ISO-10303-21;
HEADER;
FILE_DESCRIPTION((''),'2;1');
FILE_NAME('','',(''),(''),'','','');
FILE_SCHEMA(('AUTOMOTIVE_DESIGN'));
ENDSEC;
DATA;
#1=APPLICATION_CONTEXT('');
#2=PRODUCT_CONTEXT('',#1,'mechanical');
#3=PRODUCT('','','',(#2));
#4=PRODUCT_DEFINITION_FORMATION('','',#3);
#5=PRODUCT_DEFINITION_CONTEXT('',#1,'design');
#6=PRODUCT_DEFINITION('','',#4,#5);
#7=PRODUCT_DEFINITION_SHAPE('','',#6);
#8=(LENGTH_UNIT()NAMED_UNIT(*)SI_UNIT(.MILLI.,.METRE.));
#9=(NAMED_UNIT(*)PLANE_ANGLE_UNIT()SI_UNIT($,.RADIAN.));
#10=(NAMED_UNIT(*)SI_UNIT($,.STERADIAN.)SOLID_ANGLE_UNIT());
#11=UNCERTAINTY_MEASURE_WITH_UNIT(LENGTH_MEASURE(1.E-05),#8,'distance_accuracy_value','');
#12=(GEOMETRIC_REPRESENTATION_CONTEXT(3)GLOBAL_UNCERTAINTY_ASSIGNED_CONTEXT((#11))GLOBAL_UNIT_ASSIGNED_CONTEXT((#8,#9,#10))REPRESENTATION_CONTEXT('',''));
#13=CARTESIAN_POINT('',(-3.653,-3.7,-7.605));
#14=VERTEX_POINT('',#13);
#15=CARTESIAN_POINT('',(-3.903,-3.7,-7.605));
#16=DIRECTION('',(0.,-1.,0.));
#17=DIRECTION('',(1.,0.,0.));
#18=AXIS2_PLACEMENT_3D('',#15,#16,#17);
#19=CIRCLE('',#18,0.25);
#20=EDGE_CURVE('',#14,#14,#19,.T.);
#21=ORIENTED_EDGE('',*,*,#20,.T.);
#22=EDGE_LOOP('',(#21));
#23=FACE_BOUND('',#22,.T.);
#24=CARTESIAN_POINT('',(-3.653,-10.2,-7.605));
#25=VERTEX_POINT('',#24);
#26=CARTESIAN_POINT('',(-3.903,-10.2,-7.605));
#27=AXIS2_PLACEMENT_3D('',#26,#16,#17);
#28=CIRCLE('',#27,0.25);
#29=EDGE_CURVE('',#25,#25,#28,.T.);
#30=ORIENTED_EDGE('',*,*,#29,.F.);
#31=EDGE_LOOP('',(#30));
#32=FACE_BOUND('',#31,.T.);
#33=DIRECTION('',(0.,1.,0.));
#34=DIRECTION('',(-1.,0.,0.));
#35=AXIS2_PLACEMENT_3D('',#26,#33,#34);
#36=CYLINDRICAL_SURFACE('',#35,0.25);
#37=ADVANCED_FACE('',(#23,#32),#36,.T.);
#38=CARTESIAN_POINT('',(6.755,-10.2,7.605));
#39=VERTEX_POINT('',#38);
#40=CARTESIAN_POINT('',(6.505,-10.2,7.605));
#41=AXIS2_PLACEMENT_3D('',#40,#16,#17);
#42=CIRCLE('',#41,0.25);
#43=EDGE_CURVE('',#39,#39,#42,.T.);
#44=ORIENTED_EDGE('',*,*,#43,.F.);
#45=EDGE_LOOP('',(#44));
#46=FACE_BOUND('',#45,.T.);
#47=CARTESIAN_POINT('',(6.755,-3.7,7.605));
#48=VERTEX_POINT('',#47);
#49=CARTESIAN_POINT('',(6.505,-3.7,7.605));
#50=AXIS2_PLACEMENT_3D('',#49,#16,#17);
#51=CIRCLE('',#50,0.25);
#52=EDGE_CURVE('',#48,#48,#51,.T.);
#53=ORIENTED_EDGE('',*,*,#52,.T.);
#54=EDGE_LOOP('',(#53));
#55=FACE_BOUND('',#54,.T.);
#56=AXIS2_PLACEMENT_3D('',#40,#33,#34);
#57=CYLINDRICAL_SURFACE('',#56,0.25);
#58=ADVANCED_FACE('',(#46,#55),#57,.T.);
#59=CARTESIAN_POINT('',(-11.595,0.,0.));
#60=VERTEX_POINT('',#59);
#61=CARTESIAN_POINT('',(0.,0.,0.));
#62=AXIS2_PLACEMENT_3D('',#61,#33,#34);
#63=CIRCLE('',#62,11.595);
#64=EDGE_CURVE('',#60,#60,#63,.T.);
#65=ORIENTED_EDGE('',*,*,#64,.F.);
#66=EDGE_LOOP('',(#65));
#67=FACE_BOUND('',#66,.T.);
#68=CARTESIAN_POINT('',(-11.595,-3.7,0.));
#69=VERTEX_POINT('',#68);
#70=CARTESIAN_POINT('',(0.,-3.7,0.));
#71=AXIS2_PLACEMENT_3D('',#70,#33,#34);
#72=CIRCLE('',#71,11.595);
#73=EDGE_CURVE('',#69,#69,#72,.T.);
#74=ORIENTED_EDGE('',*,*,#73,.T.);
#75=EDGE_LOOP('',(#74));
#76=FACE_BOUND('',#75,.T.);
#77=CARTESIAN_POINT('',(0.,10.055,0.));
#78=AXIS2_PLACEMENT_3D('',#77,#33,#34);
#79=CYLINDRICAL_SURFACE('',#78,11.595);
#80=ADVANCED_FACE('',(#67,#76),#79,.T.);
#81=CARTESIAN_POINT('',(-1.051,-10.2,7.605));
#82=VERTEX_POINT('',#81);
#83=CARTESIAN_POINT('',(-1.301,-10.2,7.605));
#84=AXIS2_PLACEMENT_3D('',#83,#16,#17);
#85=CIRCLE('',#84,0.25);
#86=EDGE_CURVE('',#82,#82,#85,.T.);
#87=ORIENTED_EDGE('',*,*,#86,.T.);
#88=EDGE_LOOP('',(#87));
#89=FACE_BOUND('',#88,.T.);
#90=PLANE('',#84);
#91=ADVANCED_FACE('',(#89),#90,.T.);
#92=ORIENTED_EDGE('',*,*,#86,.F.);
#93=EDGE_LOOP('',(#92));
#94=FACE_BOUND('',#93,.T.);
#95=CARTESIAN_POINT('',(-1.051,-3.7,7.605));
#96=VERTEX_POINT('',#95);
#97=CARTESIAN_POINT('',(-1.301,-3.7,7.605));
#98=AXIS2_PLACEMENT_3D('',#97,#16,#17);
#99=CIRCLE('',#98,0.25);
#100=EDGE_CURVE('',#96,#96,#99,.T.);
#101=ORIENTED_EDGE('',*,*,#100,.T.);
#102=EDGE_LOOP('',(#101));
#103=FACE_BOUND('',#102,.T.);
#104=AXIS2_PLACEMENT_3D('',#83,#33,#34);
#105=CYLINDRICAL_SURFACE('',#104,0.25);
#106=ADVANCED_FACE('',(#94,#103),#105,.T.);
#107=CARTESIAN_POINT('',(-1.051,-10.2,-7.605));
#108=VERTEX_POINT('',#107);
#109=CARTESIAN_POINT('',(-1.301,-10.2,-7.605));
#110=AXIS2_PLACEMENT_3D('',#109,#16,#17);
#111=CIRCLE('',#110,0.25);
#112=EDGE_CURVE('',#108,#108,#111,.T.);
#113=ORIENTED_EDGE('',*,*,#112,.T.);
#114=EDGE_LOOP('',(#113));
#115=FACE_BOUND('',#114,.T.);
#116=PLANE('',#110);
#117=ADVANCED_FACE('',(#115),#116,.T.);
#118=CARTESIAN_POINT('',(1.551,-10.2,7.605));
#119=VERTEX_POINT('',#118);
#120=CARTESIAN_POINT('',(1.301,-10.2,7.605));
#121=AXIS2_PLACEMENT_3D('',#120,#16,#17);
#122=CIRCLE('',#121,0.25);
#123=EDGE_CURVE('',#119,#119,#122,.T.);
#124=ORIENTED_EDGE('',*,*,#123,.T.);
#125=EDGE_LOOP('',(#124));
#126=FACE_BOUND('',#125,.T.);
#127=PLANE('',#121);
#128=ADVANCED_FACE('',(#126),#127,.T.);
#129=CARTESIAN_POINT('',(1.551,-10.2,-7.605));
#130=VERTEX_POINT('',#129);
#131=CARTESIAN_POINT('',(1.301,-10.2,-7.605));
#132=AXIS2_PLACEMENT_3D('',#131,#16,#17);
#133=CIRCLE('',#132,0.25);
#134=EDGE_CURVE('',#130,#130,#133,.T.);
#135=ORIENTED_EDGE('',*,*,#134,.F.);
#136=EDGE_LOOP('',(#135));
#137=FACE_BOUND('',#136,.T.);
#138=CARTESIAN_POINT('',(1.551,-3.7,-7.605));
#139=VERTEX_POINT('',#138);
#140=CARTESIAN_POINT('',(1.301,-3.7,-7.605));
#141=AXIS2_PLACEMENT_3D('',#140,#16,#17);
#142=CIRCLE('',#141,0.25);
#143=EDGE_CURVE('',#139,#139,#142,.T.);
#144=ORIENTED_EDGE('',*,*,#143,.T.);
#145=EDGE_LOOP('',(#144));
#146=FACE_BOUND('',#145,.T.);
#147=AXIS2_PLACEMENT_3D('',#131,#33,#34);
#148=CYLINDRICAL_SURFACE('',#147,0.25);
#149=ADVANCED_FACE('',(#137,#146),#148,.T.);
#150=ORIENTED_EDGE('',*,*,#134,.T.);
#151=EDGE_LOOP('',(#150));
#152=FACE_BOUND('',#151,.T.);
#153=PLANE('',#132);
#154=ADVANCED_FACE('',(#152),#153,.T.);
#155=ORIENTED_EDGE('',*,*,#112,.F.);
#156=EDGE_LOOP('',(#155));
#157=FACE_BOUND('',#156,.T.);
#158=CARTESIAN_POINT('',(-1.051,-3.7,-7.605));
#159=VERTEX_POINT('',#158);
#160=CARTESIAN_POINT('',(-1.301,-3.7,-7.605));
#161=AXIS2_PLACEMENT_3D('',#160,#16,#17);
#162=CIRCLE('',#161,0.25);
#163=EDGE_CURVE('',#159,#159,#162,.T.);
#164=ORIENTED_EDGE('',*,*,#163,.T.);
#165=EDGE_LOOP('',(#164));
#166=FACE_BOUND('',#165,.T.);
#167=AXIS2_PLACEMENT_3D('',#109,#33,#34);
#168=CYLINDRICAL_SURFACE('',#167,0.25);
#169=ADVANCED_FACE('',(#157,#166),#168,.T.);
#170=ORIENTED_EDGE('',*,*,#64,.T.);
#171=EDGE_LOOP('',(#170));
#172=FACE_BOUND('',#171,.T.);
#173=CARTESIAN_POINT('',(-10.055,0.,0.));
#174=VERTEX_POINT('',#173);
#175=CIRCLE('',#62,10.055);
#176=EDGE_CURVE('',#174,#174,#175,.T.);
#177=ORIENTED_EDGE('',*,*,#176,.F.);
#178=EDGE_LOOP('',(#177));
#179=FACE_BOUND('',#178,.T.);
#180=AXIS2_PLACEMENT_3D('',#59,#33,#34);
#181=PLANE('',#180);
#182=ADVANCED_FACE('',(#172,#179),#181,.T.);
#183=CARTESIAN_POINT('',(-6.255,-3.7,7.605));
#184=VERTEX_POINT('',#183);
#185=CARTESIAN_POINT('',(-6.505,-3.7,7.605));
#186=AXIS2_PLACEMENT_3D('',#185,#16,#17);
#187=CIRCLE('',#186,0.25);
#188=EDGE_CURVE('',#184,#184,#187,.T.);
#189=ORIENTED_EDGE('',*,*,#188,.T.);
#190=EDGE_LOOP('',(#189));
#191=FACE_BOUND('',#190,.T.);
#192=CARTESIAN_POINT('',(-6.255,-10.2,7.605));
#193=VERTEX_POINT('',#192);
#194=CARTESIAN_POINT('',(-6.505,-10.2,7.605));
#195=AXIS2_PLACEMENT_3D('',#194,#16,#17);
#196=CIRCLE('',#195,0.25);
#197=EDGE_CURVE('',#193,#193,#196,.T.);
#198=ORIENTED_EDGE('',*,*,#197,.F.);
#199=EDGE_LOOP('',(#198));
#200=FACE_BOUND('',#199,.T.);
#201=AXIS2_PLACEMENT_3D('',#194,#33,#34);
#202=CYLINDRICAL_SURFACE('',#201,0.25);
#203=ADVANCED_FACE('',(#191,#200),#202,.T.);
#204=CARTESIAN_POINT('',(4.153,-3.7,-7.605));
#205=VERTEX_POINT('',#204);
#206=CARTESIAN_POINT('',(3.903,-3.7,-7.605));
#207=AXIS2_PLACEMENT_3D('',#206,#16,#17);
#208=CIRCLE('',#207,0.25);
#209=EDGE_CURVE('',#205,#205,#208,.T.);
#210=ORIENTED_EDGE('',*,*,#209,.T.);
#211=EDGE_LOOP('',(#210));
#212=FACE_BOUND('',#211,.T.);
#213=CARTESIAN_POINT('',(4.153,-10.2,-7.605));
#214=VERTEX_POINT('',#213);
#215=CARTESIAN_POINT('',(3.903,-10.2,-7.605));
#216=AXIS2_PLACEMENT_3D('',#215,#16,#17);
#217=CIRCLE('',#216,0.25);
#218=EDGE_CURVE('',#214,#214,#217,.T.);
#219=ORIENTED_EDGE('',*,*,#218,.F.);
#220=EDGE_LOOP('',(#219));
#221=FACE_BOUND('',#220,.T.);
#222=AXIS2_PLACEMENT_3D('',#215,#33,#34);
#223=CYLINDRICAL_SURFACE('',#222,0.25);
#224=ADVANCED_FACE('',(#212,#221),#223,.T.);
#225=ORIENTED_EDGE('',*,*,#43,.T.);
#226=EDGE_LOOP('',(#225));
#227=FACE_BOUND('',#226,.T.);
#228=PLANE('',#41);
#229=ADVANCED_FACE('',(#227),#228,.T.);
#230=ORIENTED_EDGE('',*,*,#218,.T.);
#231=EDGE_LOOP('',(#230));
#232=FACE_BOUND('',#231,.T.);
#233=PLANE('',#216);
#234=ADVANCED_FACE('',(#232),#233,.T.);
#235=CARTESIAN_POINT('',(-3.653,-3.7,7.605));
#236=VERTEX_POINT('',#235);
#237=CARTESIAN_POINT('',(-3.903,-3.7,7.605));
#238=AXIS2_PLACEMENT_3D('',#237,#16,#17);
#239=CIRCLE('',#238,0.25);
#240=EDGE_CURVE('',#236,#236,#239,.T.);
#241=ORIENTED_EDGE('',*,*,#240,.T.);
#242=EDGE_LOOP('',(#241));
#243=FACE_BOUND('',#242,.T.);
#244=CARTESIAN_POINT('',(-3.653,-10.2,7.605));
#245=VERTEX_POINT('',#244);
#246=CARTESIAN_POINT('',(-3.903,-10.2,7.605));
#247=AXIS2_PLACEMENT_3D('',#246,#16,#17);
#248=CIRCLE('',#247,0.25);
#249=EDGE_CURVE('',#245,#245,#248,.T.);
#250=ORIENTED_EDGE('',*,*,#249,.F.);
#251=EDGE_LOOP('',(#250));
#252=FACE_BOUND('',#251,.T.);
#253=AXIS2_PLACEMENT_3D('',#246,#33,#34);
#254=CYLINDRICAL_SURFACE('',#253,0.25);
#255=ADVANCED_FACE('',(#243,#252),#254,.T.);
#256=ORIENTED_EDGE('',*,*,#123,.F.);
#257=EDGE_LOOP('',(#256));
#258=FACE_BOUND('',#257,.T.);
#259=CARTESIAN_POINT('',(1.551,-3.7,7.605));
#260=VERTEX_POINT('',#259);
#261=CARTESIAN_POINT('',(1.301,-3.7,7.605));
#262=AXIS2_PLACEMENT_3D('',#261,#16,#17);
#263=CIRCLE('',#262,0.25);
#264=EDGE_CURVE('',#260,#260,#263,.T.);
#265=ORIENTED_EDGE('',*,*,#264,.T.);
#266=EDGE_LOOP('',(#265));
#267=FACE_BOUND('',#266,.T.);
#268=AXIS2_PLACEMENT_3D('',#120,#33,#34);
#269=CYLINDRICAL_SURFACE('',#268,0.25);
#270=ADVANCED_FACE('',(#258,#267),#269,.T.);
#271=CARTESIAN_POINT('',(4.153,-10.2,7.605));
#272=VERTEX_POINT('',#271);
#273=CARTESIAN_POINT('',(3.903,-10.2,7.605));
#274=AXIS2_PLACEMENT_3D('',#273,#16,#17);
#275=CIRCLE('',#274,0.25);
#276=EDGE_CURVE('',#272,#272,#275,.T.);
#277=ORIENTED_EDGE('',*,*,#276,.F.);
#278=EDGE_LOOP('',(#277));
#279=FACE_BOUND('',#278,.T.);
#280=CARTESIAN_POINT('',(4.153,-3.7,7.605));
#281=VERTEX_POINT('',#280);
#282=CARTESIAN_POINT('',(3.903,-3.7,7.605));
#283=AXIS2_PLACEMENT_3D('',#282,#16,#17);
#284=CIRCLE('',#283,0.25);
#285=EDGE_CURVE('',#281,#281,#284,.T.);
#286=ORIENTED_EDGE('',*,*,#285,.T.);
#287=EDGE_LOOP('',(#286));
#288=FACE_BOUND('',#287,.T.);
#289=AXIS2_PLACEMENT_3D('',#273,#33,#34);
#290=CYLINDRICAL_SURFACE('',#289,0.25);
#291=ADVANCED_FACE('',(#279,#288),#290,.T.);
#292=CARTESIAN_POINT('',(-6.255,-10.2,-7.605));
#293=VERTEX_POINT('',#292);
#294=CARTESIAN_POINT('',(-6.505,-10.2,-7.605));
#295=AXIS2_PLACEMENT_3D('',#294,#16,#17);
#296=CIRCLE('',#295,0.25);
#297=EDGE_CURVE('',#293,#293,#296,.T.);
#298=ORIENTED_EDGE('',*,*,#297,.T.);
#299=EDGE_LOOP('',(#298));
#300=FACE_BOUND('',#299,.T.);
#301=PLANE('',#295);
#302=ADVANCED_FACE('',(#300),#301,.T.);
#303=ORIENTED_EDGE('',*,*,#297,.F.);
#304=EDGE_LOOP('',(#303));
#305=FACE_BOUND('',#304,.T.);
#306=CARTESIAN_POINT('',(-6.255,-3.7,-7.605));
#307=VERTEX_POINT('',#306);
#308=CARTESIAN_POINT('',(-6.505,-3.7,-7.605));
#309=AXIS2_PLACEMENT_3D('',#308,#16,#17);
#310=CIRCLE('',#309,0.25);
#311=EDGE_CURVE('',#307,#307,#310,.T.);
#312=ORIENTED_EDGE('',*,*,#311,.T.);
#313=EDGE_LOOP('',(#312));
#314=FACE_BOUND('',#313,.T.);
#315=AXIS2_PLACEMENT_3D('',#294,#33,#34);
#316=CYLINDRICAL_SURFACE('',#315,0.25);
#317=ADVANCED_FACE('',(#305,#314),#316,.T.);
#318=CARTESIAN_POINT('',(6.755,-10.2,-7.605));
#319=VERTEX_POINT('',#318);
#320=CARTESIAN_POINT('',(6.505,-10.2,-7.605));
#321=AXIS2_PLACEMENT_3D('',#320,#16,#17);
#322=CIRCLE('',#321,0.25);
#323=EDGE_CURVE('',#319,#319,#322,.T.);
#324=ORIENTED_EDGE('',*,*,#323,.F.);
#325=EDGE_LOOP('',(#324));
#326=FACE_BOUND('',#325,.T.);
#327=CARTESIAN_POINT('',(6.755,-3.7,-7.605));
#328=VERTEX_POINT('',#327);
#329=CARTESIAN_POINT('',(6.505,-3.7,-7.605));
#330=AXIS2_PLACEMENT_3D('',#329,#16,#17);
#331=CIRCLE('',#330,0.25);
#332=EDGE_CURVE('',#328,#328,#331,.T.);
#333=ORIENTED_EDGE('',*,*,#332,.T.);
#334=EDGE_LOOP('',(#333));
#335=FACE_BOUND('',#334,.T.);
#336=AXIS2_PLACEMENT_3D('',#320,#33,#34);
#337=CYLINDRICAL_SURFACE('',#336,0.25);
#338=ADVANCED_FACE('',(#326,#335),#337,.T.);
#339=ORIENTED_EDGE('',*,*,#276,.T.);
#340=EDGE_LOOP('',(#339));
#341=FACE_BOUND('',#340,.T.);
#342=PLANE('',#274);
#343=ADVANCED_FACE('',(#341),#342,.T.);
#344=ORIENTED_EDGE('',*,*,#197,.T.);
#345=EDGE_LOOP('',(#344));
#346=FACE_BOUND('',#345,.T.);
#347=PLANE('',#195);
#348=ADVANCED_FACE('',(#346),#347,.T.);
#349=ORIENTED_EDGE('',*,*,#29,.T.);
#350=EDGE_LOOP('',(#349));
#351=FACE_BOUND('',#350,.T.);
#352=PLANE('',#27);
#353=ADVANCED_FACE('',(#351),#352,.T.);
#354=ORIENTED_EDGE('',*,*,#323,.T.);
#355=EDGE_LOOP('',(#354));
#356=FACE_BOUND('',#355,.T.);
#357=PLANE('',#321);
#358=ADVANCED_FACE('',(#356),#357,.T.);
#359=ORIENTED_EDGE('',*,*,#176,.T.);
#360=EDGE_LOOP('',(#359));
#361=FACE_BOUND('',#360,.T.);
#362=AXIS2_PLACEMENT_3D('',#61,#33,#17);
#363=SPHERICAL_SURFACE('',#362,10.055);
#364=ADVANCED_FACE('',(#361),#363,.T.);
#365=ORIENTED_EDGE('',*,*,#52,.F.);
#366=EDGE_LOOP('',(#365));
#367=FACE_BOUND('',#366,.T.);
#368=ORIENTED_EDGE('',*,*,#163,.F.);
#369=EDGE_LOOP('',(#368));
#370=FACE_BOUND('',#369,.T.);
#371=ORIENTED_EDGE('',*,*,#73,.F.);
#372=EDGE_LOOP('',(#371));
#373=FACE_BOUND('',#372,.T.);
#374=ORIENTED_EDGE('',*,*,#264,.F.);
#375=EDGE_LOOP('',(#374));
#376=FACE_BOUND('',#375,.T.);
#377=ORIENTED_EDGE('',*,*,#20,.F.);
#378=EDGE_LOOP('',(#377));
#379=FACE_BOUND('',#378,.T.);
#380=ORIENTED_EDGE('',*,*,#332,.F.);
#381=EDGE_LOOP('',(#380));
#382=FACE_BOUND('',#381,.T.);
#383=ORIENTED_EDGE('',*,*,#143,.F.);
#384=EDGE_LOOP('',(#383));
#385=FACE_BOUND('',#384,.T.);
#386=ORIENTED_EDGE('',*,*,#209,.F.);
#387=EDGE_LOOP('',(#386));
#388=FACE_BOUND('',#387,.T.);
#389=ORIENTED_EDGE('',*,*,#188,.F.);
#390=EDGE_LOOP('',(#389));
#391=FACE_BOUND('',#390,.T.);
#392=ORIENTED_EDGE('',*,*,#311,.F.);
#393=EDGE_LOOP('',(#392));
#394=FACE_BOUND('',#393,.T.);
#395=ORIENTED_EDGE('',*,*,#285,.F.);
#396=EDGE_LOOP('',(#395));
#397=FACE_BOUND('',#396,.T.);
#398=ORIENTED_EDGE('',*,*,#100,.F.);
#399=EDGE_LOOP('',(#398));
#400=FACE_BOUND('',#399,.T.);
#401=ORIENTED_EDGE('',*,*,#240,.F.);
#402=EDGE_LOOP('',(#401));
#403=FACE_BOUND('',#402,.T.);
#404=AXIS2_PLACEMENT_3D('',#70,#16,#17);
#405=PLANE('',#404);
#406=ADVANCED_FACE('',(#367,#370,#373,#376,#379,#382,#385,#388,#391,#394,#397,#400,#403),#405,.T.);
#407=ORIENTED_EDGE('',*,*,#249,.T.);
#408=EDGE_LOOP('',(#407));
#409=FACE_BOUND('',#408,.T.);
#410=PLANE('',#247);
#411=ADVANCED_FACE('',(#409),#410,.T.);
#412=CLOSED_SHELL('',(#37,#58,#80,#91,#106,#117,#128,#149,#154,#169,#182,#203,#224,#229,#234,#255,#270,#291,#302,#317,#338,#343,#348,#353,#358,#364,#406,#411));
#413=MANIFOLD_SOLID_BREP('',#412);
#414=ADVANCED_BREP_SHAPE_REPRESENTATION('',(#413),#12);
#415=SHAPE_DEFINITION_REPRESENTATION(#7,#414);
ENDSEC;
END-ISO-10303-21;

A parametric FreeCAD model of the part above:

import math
import FreeCAD as App
import Part
import Sketcher
from FreeCAD import Vector
Q = App.Units.Quantity

doc = App.newDocument("Part")
body = doc.addObject("PartDesign::Body", "Body")

# Sketch on XY plane
sketch1 = body.newObject("Sketcher::SketchObject", "Sketch")
sketch1.AttachmentSupport = (doc.getObject("XY_Plane"), [""])
sketch1.MapMode = "FlatFace"
sketch1.addGeometry([
    Part.LineSegment(Vector(0, -3.7, 0), Vector(0, 10.055, 0)),  # 0
    Part.ArcOfCircle(Part.Circle(Vector(0, 0, 0), Vector(0, 0, 1), 10.055), math.radians(90), math.radians(180)),  # 1
    Part.LineSegment(Vector(-10.055, 0, 0), Vector(-11.595, 0, 0)),  # 2
    Part.LineSegment(Vector(-11.595, 0, 0), Vector(-11.595, -3.7, 0)),  # 3
    Part.LineSegment(Vector(-11.595, -3.7, 0), Vector(0, -3.7, 0)),  # 4
], False)
sketch1.addConstraint([
    Sketcher.Constraint("Coincident", 0, 2, 1, 1),
    Sketcher.Constraint("Coincident", 1, 2, 2, 1),
    Sketcher.Constraint("Coincident", 2, 2, 3, 1),
    Sketcher.Constraint("Coincident", 3, 2, 4, 1),
    Sketcher.Constraint("Coincident", 4, 2, 0, 1),
    Sketcher.Constraint("Vertical", 0),
    Sketcher.Constraint("Horizontal", 2),
    Sketcher.Constraint("Vertical", 3),
    Sketcher.Constraint("Horizontal", 4),
    Sketcher.Constraint("Coincident", 1, 3, -1, 1),
    Sketcher.Constraint("PointOnObject", 0, 2, -2),
    Sketcher.Constraint("PointOnObject", 1, 2, -1),
    Sketcher.Constraint("DistanceY", 3, 2, 3, 1, Q("3.7 mm")),
    Sketcher.Constraint("Radius", 1, Q("10.055 mm")),
    Sketcher.Constraint("DistanceX", 2, 2, 2, 1, Q("1.54 mm")),
])
revolution = body.newObject("PartDesign::Revolution", "Revolution")
revolution.Profile = sketch1
revolution.ReferenceAxis = (sketch1, ["V_Axis"])
revolution.Angle = 360

# Sketch on XZ plane
sketch2 = body.newObject("Sketcher::SketchObject", "Sketch001")
sketch2.AttachmentSupport = (doc.getObject("XZ_Plane"), [""])
sketch2.MapMode = "FlatFace"
sketch2.AttachmentOffset = App.Placement(Vector(0, 0, 3.7), App.Rotation())
sketch2.addGeometry([
    Part.Circle(Vector(-6.505, 7.605, 0), Vector(0, 0, 1), 0.25),  # 0
    Part.Circle(Vector(-3.903, 7.605, 0), Vector(0, 0, 1), 0.25),  # 1
    Part.Circle(Vector(-1.301, 7.605, 0), Vector(0, 0, 1), 0.25),  # 2
    Part.Circle(Vector(1.301, 7.605, 0), Vector(0, 0, 1), 0.25),  # 3
    Part.Circle(Vector(3.903, 7.605, 0), Vector(0, 0, 1), 0.25),  # 4
    Part.Circle(Vector(6.505, 7.605, 0), Vector(0, 0, 1), 0.25),  # 5
    Part.Circle(Vector(-3.903, -7.605, 0), Vector(0, 0, 1), 0.25),  # 6
    Part.Circle(Vector(-1.301, -7.605, 0), Vector(0, 0, 1), 0.25),  # 7
    Part.Circle(Vector(1.301, -7.605, 0), Vector(0, 0, 1), 0.25),  # 8
    Part.Circle(Vector(3.903, -7.605, 0), Vector(0, 0, 1), 0.25),  # 9
    Part.Circle(Vector(6.505, -7.605, 0), Vector(0, 0, 1), 0.25),  # 10
    Part.Circle(Vector(-6.505, -7.605, 0), Vector(0, 0, 1), 0.25),  # 11
], False)
sketch2.addConstraint([
    Sketcher.Constraint("Equal", 0, 1),
    Sketcher.Constraint("Equal", 1, 2),
    Sketcher.Constraint("Equal", 2, 3),
    Sketcher.Constraint("Equal", 3, 4),
    Sketcher.Constraint("Equal", 4, 5),
    Sketcher.Constraint("Equal", 5, 6),
    Sketcher.Constraint("Equal", 6, 7),
    Sketcher.Constraint("Equal", 7, 8),
    Sketcher.Constraint("Equal", 8, 9),
    Sketcher.Constraint("Equal", 9, 10),
    Sketcher.Constraint("Equal", 10, 11),
    Sketcher.Constraint("Symmetric", 4, 3, 6, 3, -1, 1),
    Sketcher.Constraint("Symmetric", 3, 3, 7, 3, -1, 1),
    Sketcher.Constraint("Symmetric", 2, 3, 8, 3, -1, 1),
    Sketcher.Constraint("Symmetric", 1, 3, 9, 3, -1, 1),
    Sketcher.Constraint("Symmetric", 0, 3, 10, 3, -1, 1),
    Sketcher.Constraint("Symmetric", 5, 3, 11, 3, -1, 1),
    Sketcher.Constraint("Symmetric", 2, 3, 3, 3, -2),
    Sketcher.Constraint("Symmetric", 1, 3, 4, 3, -2),
    Sketcher.Constraint("Symmetric", 0, 3, 5, 3, -2),
    Sketcher.Constraint("Horizontal", 0, 3, 1, 3),
    Sketcher.Constraint("Horizontal", 1, 3, 2, 3),
    Sketcher.Constraint("Diameter", 0, Q("0.5 mm")),
    Sketcher.Constraint("DistanceX", 0, 3, 5, 3, Q("13.01 mm")),
    Sketcher.Constraint("DistanceY", 6, 3, 1, 3, Q("15.21 mm")),
    Sketcher.Constraint("DistanceX", 1, 3, -1, 1, Q("3.903 mm")),
    Sketcher.Constraint("DistanceX", 2, 3, -1, 1, Q("1.301 mm")),
])
pad1 = body.newObject("PartDesign::Pad", "Pad")
pad1.Profile = sketch2
pad1.Length = 6.5

doc.recompute()
